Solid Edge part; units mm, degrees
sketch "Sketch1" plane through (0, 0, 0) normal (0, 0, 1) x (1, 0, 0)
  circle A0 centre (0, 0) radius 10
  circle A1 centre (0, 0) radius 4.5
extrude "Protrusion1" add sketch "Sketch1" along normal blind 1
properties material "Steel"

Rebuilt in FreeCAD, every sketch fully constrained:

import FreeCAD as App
import Part
import Sketcher

doc = App.newDocument("Part")
body = doc.addObject("PartDesign::Body", "Body")

# Sketch on XY plane
sketch1 = body.newObject("Sketcher::SketchObject", "Sketch")
sketch1.AttachmentSupport = (doc.getObject("XY_Plane"), [""])
sketch1.MapMode = "FlatFace"
sketch1.addGeometry([
    Part.Circle(App.Vector(0, 0, 0), App.Vector(0, 0, 1), 10),
    Part.Circle(App.Vector(0, 0, 0), App.Vector(0, 0, 1), 4.5),
], False)
sketch1.addConstraint([
    Sketcher.Constraint("Coincident", 0, 3, -1, 1),
    Sketcher.Constraint("Coincident", 1, 3, -1, 1),
    Sketcher.Constraint("Diameter", 0, 20.0),
    Sketcher.Constraint("Diameter", 1, 9.0),
])
pad1 = body.newObject("PartDesign::Pad", "Pad")
pad1.Profile = sketch1
pad1.Length = 1

doc.recompute()
